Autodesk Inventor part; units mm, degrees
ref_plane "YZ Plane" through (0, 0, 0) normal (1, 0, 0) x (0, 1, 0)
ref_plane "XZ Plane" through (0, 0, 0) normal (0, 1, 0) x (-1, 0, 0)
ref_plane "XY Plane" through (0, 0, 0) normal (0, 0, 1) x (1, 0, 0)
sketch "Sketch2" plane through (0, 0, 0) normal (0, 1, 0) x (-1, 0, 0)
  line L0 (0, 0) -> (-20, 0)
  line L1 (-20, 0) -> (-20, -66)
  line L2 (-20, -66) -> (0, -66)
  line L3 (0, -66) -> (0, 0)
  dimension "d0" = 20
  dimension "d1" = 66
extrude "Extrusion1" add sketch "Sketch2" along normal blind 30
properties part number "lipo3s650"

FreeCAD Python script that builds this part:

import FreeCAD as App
import Part
import Sketcher

V = App.Vector
Q = App.Units.Quantity

doc = App.newDocument("Part")
body = doc.addObject("PartDesign::Body", "Body")

# Sketch on XZ plane
sketch1 = body.newObject("Sketcher::SketchObject", "Sketch")
sketch1.AttachmentSupport = (doc.getObject("XZ_Plane"), [""])
sketch1.MapMode = "FlatFace"
sketch1.addGeometry(Part.LineSegment(V(0, -66, 0), V(0, 0, 0)), False)
sketch1.addGeometry(Part.LineSegment(V(0, 0, 0), V(20, 0, 0)), False)
sketch1.addGeometry(Part.LineSegment(V(20, 0, 0), V(20, -66, 0)), False)
sketch1.addGeometry(Part.LineSegment(V(20, -66, 0), V(0, -66, 0)), False)
sketch1.addConstraint(Sketcher.Constraint("Coincident", 0, 2, 1, 1))
sketch1.addConstraint(Sketcher.Constraint("Coincident", 1, 2, 2, 1))
sketch1.addConstraint(Sketcher.Constraint("Coincident", 2, 2, 3, 1))
sketch1.addConstraint(Sketcher.Constraint("Coincident", 3, 2, 0, 1))
sketch1.addConstraint(Sketcher.Constraint("Vertical", 0))
sketch1.addConstraint(Sketcher.Constraint("Horizontal", 1))
sketch1.addConstraint(Sketcher.Constraint("Vertical", 2))
sketch1.addConstraint(Sketcher.Constraint("Horizontal", 3))
sketch1.addConstraint(Sketcher.Constraint("Coincident", 0, 2, -1, 1))
sketch1.addConstraint(Sketcher.Constraint("DistanceX", 1, 1, 1, 2, Q("20 mm")))
sketch1.addConstraint(Sketcher.Constraint("DistanceY", 0, 1, 0, 2, Q("66 mm")))
pad1 = body.newObject("PartDesign::Pad", "Pad")
pad1.Profile = sketch1
pad1.Length = 30
pad1.Reversed = True

doc.recompute()
